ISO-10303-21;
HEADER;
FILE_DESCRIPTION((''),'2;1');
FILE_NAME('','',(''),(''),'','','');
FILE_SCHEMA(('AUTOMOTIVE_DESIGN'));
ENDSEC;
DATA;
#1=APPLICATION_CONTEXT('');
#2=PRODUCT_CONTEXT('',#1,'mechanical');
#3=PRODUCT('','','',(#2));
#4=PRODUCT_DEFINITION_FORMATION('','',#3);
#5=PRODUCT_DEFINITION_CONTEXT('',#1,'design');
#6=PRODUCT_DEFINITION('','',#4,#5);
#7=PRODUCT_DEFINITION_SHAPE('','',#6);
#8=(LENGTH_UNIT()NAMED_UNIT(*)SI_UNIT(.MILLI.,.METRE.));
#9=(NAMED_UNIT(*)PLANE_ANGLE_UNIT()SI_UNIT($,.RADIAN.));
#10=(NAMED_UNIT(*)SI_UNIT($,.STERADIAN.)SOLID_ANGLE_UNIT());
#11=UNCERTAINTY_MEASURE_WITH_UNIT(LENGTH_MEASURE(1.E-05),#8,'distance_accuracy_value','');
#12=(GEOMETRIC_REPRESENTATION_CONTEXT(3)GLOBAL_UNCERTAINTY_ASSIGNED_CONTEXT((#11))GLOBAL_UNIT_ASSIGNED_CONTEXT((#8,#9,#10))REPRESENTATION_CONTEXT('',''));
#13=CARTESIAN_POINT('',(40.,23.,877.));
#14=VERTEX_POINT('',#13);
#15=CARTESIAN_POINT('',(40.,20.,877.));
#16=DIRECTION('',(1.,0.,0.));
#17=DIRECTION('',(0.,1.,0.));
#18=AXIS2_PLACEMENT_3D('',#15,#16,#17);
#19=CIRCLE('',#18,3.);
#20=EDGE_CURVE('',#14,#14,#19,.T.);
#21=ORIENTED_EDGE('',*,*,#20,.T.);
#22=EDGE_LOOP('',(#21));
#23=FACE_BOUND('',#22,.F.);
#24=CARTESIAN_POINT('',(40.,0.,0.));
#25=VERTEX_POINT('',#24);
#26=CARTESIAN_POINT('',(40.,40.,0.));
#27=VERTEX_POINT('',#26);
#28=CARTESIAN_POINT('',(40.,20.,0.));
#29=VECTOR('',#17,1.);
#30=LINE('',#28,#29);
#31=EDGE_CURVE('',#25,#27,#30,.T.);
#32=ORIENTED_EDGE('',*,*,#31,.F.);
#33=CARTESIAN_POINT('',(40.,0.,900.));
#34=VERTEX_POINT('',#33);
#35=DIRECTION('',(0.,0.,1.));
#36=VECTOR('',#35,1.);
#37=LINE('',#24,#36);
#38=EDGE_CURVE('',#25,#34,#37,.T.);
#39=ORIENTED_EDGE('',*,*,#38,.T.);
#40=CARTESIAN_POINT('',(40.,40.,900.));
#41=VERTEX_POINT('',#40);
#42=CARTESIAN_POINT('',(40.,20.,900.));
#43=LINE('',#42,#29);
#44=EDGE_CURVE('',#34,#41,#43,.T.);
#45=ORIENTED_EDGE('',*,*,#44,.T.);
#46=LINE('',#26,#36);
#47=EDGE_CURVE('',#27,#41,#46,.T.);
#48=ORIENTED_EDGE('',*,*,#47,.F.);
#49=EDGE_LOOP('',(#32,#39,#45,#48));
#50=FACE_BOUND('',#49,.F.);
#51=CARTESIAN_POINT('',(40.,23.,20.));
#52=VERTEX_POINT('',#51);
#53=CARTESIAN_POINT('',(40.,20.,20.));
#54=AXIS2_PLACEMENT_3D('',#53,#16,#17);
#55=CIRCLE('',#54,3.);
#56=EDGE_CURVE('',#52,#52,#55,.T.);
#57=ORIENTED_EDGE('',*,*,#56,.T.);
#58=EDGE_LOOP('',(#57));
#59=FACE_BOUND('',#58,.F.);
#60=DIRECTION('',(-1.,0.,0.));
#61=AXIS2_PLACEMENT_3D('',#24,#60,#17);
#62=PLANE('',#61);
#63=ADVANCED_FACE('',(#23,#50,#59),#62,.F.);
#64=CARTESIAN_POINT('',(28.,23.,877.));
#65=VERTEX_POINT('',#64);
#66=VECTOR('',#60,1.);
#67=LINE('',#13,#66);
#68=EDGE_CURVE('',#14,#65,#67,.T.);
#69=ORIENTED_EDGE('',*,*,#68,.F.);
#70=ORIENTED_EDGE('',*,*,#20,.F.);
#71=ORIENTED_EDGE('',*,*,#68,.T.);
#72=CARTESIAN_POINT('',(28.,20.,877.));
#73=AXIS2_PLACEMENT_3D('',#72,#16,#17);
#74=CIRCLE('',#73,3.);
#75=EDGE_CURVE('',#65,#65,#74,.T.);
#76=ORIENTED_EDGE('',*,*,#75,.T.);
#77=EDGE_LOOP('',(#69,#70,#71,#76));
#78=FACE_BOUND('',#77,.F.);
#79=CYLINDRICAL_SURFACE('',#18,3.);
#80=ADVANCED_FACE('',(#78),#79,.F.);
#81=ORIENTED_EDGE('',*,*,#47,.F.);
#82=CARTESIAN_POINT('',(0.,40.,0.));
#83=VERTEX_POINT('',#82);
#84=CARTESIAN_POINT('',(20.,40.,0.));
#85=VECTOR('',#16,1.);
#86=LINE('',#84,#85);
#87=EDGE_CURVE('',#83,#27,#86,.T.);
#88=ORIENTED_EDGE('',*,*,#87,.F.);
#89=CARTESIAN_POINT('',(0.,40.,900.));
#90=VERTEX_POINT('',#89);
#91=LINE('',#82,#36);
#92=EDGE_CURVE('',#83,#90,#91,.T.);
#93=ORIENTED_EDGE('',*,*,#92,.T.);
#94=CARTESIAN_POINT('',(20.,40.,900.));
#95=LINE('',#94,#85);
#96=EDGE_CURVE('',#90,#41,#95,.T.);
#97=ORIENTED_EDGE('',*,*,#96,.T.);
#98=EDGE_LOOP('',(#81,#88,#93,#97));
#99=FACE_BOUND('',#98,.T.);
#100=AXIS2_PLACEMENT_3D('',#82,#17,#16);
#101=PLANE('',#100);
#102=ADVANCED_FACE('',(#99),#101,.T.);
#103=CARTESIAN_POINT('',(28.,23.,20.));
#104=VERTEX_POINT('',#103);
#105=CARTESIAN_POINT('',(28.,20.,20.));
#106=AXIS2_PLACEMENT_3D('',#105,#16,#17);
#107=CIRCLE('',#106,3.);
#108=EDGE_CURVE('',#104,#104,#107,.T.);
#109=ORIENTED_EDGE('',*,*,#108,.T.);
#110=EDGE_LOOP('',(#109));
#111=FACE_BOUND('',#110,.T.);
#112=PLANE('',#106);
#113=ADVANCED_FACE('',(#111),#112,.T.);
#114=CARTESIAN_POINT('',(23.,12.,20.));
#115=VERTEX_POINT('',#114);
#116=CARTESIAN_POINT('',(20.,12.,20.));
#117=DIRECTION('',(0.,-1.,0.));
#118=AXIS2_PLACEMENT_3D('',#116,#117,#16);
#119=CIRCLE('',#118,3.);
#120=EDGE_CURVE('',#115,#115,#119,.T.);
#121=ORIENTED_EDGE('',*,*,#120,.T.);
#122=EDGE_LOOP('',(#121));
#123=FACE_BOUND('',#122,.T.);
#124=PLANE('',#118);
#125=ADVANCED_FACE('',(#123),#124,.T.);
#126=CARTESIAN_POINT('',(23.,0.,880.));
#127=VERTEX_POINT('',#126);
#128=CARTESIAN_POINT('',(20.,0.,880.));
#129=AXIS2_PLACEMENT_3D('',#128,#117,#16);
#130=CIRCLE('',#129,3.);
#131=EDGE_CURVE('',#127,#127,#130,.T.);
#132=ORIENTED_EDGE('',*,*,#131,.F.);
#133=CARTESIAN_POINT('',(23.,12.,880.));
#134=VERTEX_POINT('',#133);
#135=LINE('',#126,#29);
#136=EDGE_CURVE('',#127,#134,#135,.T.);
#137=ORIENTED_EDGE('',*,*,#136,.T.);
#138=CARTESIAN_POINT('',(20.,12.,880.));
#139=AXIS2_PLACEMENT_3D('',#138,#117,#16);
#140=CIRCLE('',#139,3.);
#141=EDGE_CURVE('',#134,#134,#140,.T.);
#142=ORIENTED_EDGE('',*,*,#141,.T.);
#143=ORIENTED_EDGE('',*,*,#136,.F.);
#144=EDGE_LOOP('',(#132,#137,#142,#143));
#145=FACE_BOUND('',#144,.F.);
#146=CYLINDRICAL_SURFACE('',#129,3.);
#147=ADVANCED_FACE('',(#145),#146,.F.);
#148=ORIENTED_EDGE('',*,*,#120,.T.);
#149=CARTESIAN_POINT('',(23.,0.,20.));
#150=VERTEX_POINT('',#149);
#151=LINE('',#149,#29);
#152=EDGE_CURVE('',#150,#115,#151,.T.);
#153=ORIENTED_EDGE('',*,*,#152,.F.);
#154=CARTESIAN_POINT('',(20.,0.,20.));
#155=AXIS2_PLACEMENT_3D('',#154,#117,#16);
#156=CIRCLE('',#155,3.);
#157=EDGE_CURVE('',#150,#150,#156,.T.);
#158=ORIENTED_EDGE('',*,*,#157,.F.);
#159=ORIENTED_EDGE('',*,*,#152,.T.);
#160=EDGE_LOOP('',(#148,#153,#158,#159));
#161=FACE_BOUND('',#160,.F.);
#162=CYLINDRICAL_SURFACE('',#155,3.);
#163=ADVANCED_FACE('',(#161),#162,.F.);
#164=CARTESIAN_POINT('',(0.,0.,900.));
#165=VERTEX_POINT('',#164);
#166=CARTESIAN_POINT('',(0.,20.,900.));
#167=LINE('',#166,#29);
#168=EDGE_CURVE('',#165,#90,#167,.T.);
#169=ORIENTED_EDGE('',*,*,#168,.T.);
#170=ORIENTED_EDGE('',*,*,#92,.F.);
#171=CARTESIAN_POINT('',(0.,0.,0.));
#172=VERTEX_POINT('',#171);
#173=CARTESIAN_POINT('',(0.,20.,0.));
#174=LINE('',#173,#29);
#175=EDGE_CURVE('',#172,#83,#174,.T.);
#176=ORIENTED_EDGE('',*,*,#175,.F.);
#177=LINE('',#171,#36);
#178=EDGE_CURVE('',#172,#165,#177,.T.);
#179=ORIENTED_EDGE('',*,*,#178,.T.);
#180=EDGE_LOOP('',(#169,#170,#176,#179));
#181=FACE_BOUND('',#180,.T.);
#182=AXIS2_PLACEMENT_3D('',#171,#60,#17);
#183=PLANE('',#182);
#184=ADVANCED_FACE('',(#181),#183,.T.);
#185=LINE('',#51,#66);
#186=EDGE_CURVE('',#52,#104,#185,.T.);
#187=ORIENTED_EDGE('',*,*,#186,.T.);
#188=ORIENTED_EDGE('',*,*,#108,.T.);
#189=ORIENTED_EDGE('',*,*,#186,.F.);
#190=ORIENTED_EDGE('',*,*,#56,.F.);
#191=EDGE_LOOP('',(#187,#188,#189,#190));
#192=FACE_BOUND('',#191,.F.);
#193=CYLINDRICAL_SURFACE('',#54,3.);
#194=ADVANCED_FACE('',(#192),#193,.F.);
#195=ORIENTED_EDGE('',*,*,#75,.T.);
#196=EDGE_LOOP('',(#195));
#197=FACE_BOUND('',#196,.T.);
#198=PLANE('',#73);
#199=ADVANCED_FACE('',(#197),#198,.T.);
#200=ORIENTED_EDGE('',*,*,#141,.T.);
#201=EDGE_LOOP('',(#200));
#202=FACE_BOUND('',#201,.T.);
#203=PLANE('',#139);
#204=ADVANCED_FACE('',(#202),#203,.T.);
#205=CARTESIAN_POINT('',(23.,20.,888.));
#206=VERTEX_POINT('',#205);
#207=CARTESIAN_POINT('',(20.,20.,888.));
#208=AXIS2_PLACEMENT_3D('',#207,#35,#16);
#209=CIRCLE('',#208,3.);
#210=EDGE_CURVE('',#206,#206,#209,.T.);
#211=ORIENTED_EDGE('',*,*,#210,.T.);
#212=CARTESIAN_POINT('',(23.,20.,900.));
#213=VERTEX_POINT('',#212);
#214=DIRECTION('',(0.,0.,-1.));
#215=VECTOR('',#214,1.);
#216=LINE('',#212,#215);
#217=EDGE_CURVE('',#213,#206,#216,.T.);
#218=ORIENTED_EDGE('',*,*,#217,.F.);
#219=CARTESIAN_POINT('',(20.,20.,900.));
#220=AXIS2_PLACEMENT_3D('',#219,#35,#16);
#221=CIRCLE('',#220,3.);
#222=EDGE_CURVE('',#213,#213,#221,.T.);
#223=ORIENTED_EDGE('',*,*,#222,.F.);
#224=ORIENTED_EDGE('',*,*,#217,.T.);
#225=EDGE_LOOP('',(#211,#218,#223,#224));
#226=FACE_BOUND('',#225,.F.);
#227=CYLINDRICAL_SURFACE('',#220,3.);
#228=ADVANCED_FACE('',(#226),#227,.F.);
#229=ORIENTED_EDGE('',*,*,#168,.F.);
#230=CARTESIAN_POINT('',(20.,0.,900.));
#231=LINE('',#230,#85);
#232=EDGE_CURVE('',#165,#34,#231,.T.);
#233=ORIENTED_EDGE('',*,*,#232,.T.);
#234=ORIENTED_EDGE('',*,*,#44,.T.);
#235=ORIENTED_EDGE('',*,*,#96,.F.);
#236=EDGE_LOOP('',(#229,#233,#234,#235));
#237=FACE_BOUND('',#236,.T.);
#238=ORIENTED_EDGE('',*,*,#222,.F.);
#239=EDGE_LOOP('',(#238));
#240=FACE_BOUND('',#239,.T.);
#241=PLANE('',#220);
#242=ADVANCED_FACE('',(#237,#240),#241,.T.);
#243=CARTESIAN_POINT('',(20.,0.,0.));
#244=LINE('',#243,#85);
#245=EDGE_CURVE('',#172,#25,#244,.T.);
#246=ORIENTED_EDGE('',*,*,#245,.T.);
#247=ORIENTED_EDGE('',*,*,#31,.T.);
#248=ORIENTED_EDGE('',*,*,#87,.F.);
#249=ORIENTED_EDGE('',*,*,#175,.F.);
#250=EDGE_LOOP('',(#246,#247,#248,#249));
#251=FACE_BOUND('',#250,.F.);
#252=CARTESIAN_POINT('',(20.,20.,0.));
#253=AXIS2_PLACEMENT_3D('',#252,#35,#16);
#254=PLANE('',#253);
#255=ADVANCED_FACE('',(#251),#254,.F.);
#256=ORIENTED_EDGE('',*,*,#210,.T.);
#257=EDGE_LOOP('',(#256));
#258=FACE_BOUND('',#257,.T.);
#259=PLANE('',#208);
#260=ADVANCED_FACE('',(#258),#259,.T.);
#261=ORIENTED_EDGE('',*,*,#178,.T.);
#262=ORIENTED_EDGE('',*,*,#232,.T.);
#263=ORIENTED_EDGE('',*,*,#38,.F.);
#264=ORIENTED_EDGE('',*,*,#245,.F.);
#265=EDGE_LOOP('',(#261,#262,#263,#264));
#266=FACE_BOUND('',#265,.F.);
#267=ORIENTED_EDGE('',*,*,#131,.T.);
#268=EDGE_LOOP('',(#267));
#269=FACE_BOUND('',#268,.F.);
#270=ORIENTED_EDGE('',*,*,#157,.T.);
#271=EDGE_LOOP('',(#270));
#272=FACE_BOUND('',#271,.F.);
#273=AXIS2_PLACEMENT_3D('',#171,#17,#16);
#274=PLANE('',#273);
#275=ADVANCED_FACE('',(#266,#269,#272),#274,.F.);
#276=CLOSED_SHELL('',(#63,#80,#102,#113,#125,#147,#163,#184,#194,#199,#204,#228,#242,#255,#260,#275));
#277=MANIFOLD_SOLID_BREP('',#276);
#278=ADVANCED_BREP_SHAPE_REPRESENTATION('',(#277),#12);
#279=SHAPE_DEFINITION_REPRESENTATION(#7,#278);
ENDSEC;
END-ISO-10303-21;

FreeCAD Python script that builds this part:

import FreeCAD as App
import Part
import Sketcher


def add_polygon(sketch, points):
    """Adds a closed chain of lines whose ends are joined by coincident constraints."""
    first, n = sketch.GeometryCount, len(points)
    for a, b in zip(points, points[1:] + points[:1]):
        sketch.addGeometry(Part.LineSegment(App.Vector(*a, 0), App.Vector(*b, 0)), False)
    for i in range(n):
        sketch.addConstraint(Sketcher.Constraint("Coincident", first + i, 2, first + (i + 1) % n, 1))

doc = App.newDocument("Part")
body = doc.addObject("PartDesign::Body", "Body")

# Sketch on XY plane
sketch1 = body.newObject("Sketcher::SketchObject", "Sketch")
sketch1.AttachmentSupport = (doc.getObject("XY_Plane"), [""])
sketch1.MapMode = "FlatFace"
add_polygon(sketch1, [(0, 40), (0, 0), (40, 0), (40, 40)])  # lines 0-3
sketch1.addConstraint([
    Sketcher.Constraint("Vertical", 0),
    Sketcher.Constraint("Horizontal", 1),
    Sketcher.Constraint("Vertical", 2),
    Sketcher.Constraint("Horizontal", 3),
    Sketcher.Constraint("Coincident", 0, 2, -1, 1),
    Sketcher.Constraint("Equal", 3, 0),
    Sketcher.Constraint("DistanceX", 1, 1, 1, 2, 40.0),
])
pad1 = body.newObject("PartDesign::Pad", "Pad")
pad1.Profile = sketch1
pad1.Length = 900

# Sketch on XY plane
sketch2 = body.newObject("Sketcher::SketchObject", "Sketch001")
sketch2.AttachmentSupport = (doc.getObject("XY_Plane"), [""])
sketch2.MapMode = "FlatFace"
sketch2.AttachmentOffset = App.Placement(App.Vector(0, 0, 900), App.Rotation())
sketch2.addGeometry(Part.Circle(App.Vector(20, 20, 0), App.Vector(0, 0, 1), 3), False)
sketch2.addConstraint([
    Sketcher.Constraint("Diameter", 0, 6.0),
    Sketcher.Constraint("DistanceX", -1, 1, 0, 3, 20.0),
    Sketcher.Constraint("DistanceY", -1, 1, 0, 3, 20.0),
])
pocket1 = body.newObject("PartDesign::Pocket", "Pocket")
pocket1.Profile = sketch2
pocket1.Length = 12

# Sketch on XZ plane
sketch3 = body.newObject("Sketcher::SketchObject", "Sketch002")
sketch3.AttachmentSupport = (doc.getObject("XZ_Plane"), [""])
sketch3.MapMode = "FlatFace"
sketch3.addGeometry(Part.Circle(App.Vector(20, 880, 0), App.Vector(0, 0, 1), 3), False)
sketch3.addConstraint([
    Sketcher.Constraint("Diameter", 0, 6.0),
    Sketcher.Constraint("DistanceX", -1, 1, 0, 3, 20.0),
    Sketcher.Constraint("DistanceY", -1, 1, 0, 3, 880.0),
])
pocket2 = body.newObject("PartDesign::Pocket", "Pocket001")
pocket2.Profile = sketch3
pocket2.Length = 12

# Sketch on YZ plane
sketch4 = body.newObject("Sketcher::SketchObject", "Sketch003")
sketch4.AttachmentSupport = (doc.getObject("YZ_Plane"), [""])
sketch4.MapMode = "FlatFace"
sketch4.AttachmentOffset = App.Placement(App.Vector(0, 0, 40), App.Rotation())
sketch4.addGeometry(Part.Circle(App.Vector(20, 877, 0), App.Vector(0, 0, 1), 3), False)
sketch4.addConstraint([
    Sketcher.Constraint("Diameter", 0, 6.0),
    Sketcher.Constraint("DistanceX", -1, 1, 0, 3, 20.0),
    Sketcher.Constraint("DistanceY", -1, 1, 0, 3, 877.0),
])
pocket3 = body.newObject("PartDesign::Pocket", "Pocket002")
pocket3.Profile = sketch4
pocket3.Length = 12

# Sketch on YZ plane
sketch5 = body.newObject("Sketcher::SketchObject", "Sketch004")
sketch5.AttachmentSupport = (doc.getObject("YZ_Plane"), [""])
sketch5.MapMode = "FlatFace"
sketch5.AttachmentOffset = App.Placement(App.Vector(0, 0, 40), App.Rotation())
sketch5.addGeometry(Part.Circle(App.Vector(20, 20, 0), App.Vector(0, 0, 1), 3), False)
sketch5.addConstraint([
    Sketcher.Constraint("Diameter", 0, 6.0),
    Sketcher.Constraint("DistanceX", -1, 1, 0, 3, 20.0),
    Sketcher.Constraint("DistanceY", -1, 1, 0, 3, 20.0),
])
pocket4 = body.newObject("PartDesign::Pocket", "Pocket003")
pocket4.Profile = sketch5
pocket4.Length = 12

# Sketch on XZ plane
sketch6 = body.newObject("Sketcher::SketchObject", "Sketch005")
sketch6.AttachmentSupport = (doc.getObject("XZ_Plane"), [""])
sketch6.MapMode = "FlatFace"
sketch6.addGeometry(Part.Circle(App.Vector(20, 20, 0), App.Vector(0, 0, 1), 3), False)
sketch6.addConstraint([
    Sketcher.Constraint("Diameter", 0, 6.0),
    Sketcher.Constraint("DistanceX", -1, 1, 0, 3, 20.0),
    Sketcher.Constraint("DistanceY", -1, 1, 0, 3, 20.0),
])
pocket5 = body.newObject("PartDesign::Pocket", "Pocket004")
pocket5.Profile = sketch6
pocket5.Length = 12

doc.recompute()
